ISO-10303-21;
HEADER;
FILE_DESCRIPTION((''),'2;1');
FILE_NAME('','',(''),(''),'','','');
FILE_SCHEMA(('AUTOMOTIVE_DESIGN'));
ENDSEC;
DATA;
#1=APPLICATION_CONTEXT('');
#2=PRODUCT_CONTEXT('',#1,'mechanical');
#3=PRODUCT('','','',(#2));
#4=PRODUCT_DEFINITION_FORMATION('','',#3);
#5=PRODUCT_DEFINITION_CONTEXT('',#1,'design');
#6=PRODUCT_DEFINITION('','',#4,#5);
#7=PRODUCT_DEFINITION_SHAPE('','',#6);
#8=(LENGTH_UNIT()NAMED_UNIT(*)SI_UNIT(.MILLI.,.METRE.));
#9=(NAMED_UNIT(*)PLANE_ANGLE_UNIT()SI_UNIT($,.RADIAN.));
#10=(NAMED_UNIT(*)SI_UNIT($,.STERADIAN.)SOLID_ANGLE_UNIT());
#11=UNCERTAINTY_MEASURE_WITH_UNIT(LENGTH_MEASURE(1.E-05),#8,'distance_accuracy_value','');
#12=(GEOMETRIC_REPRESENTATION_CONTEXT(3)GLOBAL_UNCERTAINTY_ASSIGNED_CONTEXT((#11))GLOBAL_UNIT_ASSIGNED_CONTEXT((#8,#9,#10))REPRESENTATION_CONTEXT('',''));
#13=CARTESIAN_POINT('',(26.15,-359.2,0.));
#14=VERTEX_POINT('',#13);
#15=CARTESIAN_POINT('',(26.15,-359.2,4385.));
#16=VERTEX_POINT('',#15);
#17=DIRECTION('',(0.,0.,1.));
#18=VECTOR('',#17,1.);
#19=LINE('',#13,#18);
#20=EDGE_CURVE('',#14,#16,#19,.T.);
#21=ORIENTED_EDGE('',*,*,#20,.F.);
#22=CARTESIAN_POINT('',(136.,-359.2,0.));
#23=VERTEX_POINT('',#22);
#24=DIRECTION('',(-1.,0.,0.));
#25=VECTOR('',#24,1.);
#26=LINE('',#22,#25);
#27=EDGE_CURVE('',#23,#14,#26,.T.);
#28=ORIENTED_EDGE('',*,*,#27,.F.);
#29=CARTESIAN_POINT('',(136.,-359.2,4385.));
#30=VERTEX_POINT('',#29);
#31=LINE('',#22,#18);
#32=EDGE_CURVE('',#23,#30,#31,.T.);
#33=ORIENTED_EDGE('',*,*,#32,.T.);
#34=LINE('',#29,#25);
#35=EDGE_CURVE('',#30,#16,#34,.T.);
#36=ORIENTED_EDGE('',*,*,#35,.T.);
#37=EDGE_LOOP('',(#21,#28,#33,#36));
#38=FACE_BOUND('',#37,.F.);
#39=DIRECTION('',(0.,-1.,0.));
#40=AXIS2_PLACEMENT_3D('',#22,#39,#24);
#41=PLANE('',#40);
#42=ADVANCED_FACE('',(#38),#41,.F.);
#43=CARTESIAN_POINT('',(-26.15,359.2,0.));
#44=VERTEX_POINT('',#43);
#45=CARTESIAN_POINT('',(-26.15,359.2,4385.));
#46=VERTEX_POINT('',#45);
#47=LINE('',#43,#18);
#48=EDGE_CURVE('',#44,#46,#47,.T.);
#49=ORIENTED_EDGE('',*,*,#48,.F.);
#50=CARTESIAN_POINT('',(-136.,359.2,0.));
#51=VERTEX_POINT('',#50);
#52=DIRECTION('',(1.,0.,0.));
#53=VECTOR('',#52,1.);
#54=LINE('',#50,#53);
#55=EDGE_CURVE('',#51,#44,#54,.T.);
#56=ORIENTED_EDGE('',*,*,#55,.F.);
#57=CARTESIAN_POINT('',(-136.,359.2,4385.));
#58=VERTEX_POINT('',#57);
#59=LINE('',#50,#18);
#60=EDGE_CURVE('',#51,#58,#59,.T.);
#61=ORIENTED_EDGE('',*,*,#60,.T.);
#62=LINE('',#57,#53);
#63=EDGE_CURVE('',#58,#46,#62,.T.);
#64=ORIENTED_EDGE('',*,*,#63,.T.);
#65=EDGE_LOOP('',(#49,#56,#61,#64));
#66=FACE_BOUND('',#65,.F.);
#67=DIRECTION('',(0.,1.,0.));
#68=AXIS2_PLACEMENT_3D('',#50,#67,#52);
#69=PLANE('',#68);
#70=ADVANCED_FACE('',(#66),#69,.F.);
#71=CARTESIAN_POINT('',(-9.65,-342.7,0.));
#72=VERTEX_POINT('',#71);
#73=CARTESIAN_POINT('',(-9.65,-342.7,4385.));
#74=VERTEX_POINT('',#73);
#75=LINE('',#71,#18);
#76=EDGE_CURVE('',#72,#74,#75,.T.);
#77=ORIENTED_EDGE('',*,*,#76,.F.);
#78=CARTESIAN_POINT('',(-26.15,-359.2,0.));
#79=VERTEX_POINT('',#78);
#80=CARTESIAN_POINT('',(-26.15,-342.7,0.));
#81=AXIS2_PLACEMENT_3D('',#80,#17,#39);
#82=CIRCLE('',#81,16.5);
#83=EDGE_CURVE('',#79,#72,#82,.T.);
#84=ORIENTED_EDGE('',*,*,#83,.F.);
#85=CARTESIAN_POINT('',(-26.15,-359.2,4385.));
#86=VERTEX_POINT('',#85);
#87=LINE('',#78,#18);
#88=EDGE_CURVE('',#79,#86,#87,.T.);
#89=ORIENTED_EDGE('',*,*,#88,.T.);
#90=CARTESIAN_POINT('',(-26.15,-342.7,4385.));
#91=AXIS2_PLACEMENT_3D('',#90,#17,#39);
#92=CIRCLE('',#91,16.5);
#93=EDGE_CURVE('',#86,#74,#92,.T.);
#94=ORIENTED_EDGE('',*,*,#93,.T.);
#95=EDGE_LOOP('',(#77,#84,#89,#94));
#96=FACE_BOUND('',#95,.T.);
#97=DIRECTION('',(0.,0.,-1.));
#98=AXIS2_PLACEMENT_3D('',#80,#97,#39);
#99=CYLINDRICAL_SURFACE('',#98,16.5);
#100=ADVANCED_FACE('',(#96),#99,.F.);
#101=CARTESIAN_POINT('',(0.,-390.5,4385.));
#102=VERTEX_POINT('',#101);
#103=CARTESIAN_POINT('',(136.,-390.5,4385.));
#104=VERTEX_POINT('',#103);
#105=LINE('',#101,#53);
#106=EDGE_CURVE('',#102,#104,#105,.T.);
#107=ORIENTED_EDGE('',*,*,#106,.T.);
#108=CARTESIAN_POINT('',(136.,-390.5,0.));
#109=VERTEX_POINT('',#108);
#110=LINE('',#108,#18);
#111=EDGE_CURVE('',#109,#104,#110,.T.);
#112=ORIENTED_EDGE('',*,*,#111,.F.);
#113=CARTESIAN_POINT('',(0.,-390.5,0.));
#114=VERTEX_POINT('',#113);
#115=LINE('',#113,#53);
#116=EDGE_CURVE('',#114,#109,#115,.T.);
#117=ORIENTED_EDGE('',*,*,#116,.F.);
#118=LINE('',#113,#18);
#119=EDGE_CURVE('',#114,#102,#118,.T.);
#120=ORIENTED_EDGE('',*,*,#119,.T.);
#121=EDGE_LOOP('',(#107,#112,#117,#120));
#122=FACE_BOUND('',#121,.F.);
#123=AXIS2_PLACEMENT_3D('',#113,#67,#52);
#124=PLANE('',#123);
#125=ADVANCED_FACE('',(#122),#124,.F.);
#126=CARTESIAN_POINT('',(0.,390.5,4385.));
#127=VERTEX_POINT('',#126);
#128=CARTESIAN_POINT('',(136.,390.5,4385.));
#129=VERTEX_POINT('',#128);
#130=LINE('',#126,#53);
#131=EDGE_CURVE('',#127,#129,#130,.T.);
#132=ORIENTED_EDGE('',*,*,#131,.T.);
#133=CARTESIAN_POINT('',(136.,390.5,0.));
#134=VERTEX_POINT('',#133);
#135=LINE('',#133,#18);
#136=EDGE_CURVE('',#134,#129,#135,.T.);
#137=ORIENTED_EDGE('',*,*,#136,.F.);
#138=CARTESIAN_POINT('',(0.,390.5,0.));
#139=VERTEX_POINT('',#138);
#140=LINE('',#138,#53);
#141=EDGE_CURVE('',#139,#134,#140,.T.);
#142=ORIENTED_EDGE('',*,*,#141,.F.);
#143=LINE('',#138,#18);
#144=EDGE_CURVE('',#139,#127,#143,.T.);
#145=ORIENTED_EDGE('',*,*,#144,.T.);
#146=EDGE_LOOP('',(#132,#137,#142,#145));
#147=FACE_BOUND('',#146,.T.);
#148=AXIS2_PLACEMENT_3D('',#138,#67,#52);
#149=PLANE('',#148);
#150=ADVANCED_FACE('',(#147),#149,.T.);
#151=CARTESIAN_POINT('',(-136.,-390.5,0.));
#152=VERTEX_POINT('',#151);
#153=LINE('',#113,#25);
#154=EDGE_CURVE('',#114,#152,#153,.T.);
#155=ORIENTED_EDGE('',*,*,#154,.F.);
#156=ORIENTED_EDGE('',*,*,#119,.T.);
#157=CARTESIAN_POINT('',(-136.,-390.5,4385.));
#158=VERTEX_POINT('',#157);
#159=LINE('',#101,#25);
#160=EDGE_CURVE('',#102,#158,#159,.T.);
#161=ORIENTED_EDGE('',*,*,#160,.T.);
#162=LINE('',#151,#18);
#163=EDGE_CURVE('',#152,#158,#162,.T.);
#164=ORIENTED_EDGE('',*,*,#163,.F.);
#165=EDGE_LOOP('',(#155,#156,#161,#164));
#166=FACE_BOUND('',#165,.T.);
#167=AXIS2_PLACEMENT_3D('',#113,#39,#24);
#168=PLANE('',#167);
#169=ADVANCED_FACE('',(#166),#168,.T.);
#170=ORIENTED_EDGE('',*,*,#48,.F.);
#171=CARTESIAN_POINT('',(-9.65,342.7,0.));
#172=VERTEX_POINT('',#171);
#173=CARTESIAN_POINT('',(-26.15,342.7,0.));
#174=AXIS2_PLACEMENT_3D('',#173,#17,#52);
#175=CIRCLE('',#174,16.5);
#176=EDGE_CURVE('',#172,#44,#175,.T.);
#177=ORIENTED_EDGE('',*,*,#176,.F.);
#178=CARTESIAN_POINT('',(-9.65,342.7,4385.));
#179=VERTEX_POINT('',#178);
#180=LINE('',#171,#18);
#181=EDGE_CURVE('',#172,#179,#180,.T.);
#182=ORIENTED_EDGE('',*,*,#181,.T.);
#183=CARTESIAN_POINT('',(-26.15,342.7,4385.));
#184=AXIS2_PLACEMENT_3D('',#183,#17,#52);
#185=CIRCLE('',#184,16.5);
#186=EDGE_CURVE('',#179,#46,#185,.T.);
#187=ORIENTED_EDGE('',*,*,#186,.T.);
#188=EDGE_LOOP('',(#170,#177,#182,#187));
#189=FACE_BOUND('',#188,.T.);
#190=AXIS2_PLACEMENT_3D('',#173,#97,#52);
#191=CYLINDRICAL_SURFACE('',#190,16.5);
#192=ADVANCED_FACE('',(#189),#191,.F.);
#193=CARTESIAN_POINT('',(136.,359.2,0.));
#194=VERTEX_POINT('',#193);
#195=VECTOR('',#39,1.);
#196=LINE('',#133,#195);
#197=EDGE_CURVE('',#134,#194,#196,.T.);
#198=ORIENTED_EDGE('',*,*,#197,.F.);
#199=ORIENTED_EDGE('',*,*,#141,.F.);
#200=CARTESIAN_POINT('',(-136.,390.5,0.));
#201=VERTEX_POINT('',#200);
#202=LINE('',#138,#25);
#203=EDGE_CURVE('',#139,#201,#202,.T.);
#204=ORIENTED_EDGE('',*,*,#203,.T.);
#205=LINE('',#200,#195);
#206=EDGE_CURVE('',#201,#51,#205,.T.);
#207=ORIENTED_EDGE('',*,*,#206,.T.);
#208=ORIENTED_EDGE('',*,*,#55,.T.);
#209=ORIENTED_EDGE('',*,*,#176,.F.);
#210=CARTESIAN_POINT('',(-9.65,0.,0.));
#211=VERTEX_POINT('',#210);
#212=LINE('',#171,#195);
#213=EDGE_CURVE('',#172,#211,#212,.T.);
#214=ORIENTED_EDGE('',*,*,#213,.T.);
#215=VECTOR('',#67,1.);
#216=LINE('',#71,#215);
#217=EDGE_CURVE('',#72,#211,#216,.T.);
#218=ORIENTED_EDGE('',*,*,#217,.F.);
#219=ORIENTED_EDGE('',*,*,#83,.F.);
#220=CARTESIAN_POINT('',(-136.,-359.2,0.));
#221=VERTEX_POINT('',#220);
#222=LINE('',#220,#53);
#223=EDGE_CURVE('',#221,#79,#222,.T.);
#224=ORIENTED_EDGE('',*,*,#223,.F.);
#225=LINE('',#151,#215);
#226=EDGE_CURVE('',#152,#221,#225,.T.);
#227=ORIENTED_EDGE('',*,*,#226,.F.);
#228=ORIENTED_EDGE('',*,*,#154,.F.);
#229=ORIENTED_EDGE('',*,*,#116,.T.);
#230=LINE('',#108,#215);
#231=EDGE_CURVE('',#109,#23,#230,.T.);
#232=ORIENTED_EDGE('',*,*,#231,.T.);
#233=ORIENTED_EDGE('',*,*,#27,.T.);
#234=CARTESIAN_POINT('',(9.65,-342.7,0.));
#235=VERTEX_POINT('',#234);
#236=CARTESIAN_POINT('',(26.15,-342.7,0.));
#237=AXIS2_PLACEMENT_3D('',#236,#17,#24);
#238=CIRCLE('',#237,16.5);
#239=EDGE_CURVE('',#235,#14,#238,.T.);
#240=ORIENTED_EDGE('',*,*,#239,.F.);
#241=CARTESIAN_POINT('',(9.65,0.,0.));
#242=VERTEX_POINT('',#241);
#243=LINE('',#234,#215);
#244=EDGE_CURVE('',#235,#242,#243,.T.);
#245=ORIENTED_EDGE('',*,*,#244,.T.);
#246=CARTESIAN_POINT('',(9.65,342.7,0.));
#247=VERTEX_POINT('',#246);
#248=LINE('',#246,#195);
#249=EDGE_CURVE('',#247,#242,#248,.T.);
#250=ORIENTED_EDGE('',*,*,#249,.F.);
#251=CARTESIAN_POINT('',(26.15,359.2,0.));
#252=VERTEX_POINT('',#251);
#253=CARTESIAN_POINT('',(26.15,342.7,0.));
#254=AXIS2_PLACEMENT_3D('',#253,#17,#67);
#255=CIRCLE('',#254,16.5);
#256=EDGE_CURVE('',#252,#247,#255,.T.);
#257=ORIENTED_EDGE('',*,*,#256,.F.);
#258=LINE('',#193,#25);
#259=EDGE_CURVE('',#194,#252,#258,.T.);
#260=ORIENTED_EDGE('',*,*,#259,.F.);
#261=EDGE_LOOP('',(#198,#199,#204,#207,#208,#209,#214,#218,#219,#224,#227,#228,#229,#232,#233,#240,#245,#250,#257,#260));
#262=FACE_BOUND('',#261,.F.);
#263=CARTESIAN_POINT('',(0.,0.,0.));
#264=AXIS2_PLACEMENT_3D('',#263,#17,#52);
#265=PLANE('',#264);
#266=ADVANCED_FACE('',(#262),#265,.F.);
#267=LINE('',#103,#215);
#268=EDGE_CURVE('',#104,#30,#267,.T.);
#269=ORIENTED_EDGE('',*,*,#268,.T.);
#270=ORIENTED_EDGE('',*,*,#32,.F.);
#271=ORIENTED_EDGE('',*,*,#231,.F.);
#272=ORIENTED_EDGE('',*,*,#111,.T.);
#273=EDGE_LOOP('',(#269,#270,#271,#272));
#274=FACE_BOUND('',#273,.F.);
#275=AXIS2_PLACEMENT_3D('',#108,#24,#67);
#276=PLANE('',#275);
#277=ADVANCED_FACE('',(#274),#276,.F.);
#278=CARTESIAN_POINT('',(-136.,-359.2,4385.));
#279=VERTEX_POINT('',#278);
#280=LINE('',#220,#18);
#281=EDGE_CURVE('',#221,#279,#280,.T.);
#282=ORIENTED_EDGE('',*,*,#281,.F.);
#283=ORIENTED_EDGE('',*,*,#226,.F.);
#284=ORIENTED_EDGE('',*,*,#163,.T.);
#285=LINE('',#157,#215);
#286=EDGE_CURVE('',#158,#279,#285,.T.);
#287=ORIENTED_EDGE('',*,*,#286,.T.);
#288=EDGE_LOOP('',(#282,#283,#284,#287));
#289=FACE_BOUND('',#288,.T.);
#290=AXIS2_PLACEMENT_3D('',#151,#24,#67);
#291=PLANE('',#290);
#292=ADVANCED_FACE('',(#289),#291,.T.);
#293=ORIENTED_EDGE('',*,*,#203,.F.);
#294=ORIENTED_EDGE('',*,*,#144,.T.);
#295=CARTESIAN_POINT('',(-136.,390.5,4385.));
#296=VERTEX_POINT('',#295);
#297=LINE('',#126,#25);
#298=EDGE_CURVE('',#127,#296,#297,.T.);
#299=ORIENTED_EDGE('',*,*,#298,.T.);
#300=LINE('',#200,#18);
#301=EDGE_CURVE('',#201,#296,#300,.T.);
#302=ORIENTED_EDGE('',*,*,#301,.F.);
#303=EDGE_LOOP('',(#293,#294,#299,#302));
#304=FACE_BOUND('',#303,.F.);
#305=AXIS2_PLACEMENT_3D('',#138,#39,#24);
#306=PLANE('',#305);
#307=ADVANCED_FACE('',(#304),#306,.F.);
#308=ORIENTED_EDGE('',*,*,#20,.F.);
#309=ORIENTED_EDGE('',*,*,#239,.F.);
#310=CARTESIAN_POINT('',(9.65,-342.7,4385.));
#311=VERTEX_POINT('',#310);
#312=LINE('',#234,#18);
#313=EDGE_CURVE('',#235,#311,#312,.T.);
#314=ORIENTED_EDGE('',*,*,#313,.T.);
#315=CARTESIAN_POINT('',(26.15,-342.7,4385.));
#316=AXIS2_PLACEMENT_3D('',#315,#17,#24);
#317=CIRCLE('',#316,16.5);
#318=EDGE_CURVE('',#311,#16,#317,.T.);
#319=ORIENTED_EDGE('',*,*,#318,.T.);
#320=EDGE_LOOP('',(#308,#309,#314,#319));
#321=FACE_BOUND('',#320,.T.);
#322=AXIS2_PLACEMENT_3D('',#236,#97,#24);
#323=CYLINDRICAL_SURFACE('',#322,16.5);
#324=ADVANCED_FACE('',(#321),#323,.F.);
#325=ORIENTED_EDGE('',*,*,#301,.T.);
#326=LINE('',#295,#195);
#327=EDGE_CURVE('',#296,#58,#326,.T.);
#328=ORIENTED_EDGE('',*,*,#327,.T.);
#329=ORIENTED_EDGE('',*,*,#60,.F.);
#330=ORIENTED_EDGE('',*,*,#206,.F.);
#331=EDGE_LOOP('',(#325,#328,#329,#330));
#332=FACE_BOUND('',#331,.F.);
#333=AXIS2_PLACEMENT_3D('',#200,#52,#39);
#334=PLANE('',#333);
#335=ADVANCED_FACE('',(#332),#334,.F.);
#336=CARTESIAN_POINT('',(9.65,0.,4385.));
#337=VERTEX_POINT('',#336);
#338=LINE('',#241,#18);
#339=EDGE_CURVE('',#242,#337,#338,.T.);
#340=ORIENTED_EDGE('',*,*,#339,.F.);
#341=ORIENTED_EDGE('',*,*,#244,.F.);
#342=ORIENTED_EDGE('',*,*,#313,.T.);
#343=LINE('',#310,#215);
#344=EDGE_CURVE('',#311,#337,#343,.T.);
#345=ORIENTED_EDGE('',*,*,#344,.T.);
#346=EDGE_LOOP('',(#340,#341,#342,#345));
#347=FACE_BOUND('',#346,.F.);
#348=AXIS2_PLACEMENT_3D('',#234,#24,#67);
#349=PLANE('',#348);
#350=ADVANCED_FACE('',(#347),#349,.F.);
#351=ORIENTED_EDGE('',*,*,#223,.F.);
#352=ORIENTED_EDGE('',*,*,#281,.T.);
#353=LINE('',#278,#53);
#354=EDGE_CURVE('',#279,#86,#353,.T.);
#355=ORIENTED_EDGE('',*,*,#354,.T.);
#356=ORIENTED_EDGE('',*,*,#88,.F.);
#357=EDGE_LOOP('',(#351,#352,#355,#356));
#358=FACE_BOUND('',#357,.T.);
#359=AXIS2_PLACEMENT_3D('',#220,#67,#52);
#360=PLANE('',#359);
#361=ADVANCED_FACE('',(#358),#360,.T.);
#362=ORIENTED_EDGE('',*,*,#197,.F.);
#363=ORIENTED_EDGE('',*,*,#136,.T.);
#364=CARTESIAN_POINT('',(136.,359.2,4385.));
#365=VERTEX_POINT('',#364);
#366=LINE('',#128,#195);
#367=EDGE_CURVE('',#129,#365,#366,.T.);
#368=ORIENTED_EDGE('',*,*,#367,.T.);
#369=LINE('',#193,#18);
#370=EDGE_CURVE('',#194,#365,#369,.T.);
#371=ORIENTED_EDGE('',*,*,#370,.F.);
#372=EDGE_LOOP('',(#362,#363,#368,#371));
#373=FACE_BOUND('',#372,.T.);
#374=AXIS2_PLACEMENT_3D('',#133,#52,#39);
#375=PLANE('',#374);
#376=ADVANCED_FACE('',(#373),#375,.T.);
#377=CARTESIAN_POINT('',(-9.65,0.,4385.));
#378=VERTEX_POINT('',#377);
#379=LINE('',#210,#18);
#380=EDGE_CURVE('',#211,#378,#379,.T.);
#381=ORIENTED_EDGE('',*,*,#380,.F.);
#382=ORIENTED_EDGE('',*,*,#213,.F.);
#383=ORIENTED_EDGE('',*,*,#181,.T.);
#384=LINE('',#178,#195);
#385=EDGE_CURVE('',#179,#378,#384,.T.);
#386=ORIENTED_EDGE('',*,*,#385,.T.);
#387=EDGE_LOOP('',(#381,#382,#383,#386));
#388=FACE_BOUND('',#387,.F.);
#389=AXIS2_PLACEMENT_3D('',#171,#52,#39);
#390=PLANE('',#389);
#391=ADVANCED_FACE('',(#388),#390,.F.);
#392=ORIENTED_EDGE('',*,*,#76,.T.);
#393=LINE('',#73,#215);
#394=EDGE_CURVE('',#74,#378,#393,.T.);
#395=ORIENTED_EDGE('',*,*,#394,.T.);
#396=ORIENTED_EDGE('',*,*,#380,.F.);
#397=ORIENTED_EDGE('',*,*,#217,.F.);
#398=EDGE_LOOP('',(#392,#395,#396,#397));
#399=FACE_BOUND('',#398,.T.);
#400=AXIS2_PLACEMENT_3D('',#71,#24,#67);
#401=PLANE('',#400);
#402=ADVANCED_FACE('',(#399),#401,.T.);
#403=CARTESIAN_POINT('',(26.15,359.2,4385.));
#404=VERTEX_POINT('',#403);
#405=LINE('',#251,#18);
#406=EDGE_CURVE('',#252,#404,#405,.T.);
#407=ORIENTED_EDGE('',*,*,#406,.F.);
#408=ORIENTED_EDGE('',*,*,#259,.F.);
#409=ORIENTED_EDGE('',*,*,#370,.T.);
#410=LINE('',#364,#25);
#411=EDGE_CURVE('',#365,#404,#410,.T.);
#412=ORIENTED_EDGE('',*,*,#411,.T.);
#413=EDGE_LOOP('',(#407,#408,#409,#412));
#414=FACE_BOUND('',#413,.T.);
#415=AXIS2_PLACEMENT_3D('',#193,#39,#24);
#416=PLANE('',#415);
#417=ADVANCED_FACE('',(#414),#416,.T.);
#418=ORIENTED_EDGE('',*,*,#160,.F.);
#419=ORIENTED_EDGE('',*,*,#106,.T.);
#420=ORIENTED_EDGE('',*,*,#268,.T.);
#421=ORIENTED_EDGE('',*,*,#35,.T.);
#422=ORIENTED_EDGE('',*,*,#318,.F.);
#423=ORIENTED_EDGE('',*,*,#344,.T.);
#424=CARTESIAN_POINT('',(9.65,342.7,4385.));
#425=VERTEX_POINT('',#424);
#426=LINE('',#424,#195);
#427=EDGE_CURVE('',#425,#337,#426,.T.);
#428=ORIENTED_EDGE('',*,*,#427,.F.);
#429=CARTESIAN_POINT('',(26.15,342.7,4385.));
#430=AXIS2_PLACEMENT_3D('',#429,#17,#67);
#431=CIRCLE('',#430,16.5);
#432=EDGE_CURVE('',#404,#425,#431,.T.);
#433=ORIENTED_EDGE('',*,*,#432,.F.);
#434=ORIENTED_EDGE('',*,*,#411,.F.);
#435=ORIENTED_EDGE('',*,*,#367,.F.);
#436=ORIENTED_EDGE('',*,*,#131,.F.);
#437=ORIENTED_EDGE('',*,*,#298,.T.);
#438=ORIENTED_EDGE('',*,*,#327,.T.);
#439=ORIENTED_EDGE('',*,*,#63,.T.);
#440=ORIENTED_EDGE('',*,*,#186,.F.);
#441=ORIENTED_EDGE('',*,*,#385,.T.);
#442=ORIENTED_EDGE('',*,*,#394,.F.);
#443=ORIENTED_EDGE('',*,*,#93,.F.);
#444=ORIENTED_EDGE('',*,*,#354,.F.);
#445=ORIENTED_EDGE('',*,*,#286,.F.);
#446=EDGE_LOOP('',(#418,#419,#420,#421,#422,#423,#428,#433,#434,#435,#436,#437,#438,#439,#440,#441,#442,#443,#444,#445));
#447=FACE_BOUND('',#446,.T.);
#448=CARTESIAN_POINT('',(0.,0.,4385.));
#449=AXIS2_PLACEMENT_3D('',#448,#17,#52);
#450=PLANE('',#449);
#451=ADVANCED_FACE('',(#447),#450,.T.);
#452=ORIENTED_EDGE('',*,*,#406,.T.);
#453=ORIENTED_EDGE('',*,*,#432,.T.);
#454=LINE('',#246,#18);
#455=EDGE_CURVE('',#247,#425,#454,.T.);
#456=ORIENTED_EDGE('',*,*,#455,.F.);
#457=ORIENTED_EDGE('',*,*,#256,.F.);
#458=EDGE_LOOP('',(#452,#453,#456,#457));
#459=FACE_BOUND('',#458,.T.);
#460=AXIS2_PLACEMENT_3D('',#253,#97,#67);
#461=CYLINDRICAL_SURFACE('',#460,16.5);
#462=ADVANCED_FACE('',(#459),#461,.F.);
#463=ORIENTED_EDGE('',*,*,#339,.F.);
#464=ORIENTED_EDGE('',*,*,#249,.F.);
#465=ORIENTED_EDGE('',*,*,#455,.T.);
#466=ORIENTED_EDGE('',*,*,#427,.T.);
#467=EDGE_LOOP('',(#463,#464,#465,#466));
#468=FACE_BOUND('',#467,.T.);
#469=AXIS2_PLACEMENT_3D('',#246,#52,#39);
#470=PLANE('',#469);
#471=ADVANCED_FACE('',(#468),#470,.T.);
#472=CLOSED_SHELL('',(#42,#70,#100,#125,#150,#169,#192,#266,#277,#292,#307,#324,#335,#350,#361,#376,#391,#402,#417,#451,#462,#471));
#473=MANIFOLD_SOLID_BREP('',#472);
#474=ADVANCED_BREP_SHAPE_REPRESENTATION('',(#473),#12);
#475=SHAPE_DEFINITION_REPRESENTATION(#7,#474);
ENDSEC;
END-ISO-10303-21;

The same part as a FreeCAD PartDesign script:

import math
import FreeCAD as App
import Part
import Sketcher
from FreeCAD import Vector

doc = App.newDocument("Part")
params = doc.addObject("Spreadsheet::Sheet", "Params")
for row, (alias, value) in enumerate([
    ("sketch1_radius", "16.5 mm"),
    ("sketch1_height", "31.3 mm"),
    ("pad1_length", "4385 mm"),
], start=1):
    params.set(f"A{row}", alias)
    params.set(f"B{row}", "=" + value)
    params.setAlias(f"B{row}", alias)

body = doc.addObject("PartDesign::Body", "Body")

# Sketch on XY plane
sketch1 = doc.addObject("Sketcher::SketchObject", "Sketch")
body.addObject(sketch1)
sketch1.AttachmentSupport = (doc.XY_Plane, [""])
sketch1.MapMode = "FlatFace"
sketch1.addGeometry([
    Part.LineSegment(Vector(-136, -359, 0), Vector(-136, -390, 0)),  # 0
    Part.LineSegment(Vector(-136, -390, 0), Vector(136, -390, 0)),  # 1
    Part.LineSegment(Vector(136, -390, 0), Vector(136, -359, 0)),  # 2
    Part.LineSegment(Vector(136, -359, 0), Vector(26, -359, 0)),  # 3
    Part.ArcOfCircle(Part.Circle(Vector(26, -343, 0), Vector(0, 0, 1), 16), math.radians(180), math.radians(270)),  # 4
    Part.LineSegment(Vector(10, -343, 0), Vector(10, 343, 0)),  # 5
    Part.ArcOfCircle(Part.Circle(Vector(26, 343, 0), Vector(0, 0, 1), 16), math.radians(90), math.radians(180)),  # 6
    Part.LineSegment(Vector(26, 359, 0), Vector(136, 359, 0)),  # 7
    Part.LineSegment(Vector(136, 359, 0), Vector(136, 390, 0)),  # 8
    Part.LineSegment(Vector(136, 390, 0), Vector(-136, 390, 0)),  # 9
    Part.LineSegment(Vector(-136, 390, 0), Vector(-136, 359, 0)),  # 10
    Part.LineSegment(Vector(-136, 359, 0), Vector(-26, 359, 0)),  # 11
    Part.ArcOfCircle(Part.Circle(Vector(-26, 343, 0), Vector(0, 0, 1), 16), math.radians(0), math.radians(90)),  # 12
    Part.LineSegment(Vector(-10, 343, 0), Vector(-10, -343, 0)),  # 13
    Part.ArcOfCircle(Part.Circle(Vector(-26, -343, 0), Vector(0, 0, 1), 16), math.radians(-90), math.radians(0)),  # 14
    Part.LineSegment(Vector(-26, -359, 0), Vector(-136, -359, 0)),  # 15
], False)
sketch1.addConstraint([
    Sketcher.Constraint("Coincident", 0, 2, 1, 1),
    Sketcher.Constraint("Coincident", 1, 2, 2, 1),
    Sketcher.Constraint("Coincident", 2, 2, 3, 1),
    Sketcher.Constraint("Tangent", 3, 2, 4, 2),
    Sketcher.Constraint("Tangent", 4, 1, 5, 1),
    Sketcher.Constraint("Tangent", 5, 2, 6, 2),
    Sketcher.Constraint("Tangent", 6, 1, 7, 1),
    Sketcher.Constraint("Coincident", 7, 2, 8, 1),
    Sketcher.Constraint("Coincident", 8, 2, 9, 1),
    Sketcher.Constraint("Coincident", 9, 2, 10, 1),
    Sketcher.Constraint("Coincident", 10, 2, 11, 1),
    Sketcher.Constraint("Tangent", 11, 2, 12, 2),
    Sketcher.Constraint("Tangent", 12, 1, 13, 1),
    Sketcher.Constraint("Tangent", 13, 2, 14, 2),
    Sketcher.Constraint("Tangent", 14, 1, 15, 1),
    Sketcher.Constraint("Coincident", 15, 2, 0, 1),
    Sketcher.Constraint("Vertical", 0),
    Sketcher.Constraint("Horizontal", 1),
    Sketcher.Constraint("Vertical", 2),
    Sketcher.Constraint("Horizontal", 3),
    Sketcher.Constraint("Vertical", 5),
    Sketcher.Constraint("Horizontal", 7),
    Sketcher.Constraint("Vertical", 8),
    Sketcher.Constraint("Horizontal", 9),
    Sketcher.Constraint("Vertical", 10),
    Sketcher.Constraint("Horizontal", 11),
    Sketcher.Constraint("Vertical", 13),
    Sketcher.Constraint("Horizontal", 15),
    Sketcher.Constraint("Equal", 4, 6),
    Sketcher.Constraint("Equal", 6, 12),
    Sketcher.Constraint("Equal", 12, 14),
    Sketcher.Constraint("Symmetric", 4, 3, 12, 3, -1, 1),
    Sketcher.Constraint("Symmetric", 0, 2, 8, 2, -1, 1),
    Sketcher.Constraint("Symmetric", 7, 2, 10, 2, -2),
    Sketcher.Constraint("Symmetric", 2, 2, 15, 2, -2),
    Sketcher.Constraint("Radius", 4, 16.5),
    Sketcher.Constraint("DistanceY", 0, 2, 0, 1, 31.3),
    Sketcher.Constraint("DistanceX", 0, 2, -1, 1, 136.0),
    Sketcher.Constraint("DistanceY", 0, 2, -1, 1, 390.5),
    Sketcher.Constraint("DistanceX", -1, 1, 4, 1, 9.65),
])
sketch1.setExpression("Constraints[35]", "Params.sketch1_radius")
sketch1.setExpression("Constraints[36]", "Params.sketch1_height")
pad1 = doc.addObject("PartDesign::Pad", "Pad")
body.addObject(pad1)
pad1.Profile = sketch1
pad1.setExpression("Length", "Params.pad1_length")

doc.recompute()
